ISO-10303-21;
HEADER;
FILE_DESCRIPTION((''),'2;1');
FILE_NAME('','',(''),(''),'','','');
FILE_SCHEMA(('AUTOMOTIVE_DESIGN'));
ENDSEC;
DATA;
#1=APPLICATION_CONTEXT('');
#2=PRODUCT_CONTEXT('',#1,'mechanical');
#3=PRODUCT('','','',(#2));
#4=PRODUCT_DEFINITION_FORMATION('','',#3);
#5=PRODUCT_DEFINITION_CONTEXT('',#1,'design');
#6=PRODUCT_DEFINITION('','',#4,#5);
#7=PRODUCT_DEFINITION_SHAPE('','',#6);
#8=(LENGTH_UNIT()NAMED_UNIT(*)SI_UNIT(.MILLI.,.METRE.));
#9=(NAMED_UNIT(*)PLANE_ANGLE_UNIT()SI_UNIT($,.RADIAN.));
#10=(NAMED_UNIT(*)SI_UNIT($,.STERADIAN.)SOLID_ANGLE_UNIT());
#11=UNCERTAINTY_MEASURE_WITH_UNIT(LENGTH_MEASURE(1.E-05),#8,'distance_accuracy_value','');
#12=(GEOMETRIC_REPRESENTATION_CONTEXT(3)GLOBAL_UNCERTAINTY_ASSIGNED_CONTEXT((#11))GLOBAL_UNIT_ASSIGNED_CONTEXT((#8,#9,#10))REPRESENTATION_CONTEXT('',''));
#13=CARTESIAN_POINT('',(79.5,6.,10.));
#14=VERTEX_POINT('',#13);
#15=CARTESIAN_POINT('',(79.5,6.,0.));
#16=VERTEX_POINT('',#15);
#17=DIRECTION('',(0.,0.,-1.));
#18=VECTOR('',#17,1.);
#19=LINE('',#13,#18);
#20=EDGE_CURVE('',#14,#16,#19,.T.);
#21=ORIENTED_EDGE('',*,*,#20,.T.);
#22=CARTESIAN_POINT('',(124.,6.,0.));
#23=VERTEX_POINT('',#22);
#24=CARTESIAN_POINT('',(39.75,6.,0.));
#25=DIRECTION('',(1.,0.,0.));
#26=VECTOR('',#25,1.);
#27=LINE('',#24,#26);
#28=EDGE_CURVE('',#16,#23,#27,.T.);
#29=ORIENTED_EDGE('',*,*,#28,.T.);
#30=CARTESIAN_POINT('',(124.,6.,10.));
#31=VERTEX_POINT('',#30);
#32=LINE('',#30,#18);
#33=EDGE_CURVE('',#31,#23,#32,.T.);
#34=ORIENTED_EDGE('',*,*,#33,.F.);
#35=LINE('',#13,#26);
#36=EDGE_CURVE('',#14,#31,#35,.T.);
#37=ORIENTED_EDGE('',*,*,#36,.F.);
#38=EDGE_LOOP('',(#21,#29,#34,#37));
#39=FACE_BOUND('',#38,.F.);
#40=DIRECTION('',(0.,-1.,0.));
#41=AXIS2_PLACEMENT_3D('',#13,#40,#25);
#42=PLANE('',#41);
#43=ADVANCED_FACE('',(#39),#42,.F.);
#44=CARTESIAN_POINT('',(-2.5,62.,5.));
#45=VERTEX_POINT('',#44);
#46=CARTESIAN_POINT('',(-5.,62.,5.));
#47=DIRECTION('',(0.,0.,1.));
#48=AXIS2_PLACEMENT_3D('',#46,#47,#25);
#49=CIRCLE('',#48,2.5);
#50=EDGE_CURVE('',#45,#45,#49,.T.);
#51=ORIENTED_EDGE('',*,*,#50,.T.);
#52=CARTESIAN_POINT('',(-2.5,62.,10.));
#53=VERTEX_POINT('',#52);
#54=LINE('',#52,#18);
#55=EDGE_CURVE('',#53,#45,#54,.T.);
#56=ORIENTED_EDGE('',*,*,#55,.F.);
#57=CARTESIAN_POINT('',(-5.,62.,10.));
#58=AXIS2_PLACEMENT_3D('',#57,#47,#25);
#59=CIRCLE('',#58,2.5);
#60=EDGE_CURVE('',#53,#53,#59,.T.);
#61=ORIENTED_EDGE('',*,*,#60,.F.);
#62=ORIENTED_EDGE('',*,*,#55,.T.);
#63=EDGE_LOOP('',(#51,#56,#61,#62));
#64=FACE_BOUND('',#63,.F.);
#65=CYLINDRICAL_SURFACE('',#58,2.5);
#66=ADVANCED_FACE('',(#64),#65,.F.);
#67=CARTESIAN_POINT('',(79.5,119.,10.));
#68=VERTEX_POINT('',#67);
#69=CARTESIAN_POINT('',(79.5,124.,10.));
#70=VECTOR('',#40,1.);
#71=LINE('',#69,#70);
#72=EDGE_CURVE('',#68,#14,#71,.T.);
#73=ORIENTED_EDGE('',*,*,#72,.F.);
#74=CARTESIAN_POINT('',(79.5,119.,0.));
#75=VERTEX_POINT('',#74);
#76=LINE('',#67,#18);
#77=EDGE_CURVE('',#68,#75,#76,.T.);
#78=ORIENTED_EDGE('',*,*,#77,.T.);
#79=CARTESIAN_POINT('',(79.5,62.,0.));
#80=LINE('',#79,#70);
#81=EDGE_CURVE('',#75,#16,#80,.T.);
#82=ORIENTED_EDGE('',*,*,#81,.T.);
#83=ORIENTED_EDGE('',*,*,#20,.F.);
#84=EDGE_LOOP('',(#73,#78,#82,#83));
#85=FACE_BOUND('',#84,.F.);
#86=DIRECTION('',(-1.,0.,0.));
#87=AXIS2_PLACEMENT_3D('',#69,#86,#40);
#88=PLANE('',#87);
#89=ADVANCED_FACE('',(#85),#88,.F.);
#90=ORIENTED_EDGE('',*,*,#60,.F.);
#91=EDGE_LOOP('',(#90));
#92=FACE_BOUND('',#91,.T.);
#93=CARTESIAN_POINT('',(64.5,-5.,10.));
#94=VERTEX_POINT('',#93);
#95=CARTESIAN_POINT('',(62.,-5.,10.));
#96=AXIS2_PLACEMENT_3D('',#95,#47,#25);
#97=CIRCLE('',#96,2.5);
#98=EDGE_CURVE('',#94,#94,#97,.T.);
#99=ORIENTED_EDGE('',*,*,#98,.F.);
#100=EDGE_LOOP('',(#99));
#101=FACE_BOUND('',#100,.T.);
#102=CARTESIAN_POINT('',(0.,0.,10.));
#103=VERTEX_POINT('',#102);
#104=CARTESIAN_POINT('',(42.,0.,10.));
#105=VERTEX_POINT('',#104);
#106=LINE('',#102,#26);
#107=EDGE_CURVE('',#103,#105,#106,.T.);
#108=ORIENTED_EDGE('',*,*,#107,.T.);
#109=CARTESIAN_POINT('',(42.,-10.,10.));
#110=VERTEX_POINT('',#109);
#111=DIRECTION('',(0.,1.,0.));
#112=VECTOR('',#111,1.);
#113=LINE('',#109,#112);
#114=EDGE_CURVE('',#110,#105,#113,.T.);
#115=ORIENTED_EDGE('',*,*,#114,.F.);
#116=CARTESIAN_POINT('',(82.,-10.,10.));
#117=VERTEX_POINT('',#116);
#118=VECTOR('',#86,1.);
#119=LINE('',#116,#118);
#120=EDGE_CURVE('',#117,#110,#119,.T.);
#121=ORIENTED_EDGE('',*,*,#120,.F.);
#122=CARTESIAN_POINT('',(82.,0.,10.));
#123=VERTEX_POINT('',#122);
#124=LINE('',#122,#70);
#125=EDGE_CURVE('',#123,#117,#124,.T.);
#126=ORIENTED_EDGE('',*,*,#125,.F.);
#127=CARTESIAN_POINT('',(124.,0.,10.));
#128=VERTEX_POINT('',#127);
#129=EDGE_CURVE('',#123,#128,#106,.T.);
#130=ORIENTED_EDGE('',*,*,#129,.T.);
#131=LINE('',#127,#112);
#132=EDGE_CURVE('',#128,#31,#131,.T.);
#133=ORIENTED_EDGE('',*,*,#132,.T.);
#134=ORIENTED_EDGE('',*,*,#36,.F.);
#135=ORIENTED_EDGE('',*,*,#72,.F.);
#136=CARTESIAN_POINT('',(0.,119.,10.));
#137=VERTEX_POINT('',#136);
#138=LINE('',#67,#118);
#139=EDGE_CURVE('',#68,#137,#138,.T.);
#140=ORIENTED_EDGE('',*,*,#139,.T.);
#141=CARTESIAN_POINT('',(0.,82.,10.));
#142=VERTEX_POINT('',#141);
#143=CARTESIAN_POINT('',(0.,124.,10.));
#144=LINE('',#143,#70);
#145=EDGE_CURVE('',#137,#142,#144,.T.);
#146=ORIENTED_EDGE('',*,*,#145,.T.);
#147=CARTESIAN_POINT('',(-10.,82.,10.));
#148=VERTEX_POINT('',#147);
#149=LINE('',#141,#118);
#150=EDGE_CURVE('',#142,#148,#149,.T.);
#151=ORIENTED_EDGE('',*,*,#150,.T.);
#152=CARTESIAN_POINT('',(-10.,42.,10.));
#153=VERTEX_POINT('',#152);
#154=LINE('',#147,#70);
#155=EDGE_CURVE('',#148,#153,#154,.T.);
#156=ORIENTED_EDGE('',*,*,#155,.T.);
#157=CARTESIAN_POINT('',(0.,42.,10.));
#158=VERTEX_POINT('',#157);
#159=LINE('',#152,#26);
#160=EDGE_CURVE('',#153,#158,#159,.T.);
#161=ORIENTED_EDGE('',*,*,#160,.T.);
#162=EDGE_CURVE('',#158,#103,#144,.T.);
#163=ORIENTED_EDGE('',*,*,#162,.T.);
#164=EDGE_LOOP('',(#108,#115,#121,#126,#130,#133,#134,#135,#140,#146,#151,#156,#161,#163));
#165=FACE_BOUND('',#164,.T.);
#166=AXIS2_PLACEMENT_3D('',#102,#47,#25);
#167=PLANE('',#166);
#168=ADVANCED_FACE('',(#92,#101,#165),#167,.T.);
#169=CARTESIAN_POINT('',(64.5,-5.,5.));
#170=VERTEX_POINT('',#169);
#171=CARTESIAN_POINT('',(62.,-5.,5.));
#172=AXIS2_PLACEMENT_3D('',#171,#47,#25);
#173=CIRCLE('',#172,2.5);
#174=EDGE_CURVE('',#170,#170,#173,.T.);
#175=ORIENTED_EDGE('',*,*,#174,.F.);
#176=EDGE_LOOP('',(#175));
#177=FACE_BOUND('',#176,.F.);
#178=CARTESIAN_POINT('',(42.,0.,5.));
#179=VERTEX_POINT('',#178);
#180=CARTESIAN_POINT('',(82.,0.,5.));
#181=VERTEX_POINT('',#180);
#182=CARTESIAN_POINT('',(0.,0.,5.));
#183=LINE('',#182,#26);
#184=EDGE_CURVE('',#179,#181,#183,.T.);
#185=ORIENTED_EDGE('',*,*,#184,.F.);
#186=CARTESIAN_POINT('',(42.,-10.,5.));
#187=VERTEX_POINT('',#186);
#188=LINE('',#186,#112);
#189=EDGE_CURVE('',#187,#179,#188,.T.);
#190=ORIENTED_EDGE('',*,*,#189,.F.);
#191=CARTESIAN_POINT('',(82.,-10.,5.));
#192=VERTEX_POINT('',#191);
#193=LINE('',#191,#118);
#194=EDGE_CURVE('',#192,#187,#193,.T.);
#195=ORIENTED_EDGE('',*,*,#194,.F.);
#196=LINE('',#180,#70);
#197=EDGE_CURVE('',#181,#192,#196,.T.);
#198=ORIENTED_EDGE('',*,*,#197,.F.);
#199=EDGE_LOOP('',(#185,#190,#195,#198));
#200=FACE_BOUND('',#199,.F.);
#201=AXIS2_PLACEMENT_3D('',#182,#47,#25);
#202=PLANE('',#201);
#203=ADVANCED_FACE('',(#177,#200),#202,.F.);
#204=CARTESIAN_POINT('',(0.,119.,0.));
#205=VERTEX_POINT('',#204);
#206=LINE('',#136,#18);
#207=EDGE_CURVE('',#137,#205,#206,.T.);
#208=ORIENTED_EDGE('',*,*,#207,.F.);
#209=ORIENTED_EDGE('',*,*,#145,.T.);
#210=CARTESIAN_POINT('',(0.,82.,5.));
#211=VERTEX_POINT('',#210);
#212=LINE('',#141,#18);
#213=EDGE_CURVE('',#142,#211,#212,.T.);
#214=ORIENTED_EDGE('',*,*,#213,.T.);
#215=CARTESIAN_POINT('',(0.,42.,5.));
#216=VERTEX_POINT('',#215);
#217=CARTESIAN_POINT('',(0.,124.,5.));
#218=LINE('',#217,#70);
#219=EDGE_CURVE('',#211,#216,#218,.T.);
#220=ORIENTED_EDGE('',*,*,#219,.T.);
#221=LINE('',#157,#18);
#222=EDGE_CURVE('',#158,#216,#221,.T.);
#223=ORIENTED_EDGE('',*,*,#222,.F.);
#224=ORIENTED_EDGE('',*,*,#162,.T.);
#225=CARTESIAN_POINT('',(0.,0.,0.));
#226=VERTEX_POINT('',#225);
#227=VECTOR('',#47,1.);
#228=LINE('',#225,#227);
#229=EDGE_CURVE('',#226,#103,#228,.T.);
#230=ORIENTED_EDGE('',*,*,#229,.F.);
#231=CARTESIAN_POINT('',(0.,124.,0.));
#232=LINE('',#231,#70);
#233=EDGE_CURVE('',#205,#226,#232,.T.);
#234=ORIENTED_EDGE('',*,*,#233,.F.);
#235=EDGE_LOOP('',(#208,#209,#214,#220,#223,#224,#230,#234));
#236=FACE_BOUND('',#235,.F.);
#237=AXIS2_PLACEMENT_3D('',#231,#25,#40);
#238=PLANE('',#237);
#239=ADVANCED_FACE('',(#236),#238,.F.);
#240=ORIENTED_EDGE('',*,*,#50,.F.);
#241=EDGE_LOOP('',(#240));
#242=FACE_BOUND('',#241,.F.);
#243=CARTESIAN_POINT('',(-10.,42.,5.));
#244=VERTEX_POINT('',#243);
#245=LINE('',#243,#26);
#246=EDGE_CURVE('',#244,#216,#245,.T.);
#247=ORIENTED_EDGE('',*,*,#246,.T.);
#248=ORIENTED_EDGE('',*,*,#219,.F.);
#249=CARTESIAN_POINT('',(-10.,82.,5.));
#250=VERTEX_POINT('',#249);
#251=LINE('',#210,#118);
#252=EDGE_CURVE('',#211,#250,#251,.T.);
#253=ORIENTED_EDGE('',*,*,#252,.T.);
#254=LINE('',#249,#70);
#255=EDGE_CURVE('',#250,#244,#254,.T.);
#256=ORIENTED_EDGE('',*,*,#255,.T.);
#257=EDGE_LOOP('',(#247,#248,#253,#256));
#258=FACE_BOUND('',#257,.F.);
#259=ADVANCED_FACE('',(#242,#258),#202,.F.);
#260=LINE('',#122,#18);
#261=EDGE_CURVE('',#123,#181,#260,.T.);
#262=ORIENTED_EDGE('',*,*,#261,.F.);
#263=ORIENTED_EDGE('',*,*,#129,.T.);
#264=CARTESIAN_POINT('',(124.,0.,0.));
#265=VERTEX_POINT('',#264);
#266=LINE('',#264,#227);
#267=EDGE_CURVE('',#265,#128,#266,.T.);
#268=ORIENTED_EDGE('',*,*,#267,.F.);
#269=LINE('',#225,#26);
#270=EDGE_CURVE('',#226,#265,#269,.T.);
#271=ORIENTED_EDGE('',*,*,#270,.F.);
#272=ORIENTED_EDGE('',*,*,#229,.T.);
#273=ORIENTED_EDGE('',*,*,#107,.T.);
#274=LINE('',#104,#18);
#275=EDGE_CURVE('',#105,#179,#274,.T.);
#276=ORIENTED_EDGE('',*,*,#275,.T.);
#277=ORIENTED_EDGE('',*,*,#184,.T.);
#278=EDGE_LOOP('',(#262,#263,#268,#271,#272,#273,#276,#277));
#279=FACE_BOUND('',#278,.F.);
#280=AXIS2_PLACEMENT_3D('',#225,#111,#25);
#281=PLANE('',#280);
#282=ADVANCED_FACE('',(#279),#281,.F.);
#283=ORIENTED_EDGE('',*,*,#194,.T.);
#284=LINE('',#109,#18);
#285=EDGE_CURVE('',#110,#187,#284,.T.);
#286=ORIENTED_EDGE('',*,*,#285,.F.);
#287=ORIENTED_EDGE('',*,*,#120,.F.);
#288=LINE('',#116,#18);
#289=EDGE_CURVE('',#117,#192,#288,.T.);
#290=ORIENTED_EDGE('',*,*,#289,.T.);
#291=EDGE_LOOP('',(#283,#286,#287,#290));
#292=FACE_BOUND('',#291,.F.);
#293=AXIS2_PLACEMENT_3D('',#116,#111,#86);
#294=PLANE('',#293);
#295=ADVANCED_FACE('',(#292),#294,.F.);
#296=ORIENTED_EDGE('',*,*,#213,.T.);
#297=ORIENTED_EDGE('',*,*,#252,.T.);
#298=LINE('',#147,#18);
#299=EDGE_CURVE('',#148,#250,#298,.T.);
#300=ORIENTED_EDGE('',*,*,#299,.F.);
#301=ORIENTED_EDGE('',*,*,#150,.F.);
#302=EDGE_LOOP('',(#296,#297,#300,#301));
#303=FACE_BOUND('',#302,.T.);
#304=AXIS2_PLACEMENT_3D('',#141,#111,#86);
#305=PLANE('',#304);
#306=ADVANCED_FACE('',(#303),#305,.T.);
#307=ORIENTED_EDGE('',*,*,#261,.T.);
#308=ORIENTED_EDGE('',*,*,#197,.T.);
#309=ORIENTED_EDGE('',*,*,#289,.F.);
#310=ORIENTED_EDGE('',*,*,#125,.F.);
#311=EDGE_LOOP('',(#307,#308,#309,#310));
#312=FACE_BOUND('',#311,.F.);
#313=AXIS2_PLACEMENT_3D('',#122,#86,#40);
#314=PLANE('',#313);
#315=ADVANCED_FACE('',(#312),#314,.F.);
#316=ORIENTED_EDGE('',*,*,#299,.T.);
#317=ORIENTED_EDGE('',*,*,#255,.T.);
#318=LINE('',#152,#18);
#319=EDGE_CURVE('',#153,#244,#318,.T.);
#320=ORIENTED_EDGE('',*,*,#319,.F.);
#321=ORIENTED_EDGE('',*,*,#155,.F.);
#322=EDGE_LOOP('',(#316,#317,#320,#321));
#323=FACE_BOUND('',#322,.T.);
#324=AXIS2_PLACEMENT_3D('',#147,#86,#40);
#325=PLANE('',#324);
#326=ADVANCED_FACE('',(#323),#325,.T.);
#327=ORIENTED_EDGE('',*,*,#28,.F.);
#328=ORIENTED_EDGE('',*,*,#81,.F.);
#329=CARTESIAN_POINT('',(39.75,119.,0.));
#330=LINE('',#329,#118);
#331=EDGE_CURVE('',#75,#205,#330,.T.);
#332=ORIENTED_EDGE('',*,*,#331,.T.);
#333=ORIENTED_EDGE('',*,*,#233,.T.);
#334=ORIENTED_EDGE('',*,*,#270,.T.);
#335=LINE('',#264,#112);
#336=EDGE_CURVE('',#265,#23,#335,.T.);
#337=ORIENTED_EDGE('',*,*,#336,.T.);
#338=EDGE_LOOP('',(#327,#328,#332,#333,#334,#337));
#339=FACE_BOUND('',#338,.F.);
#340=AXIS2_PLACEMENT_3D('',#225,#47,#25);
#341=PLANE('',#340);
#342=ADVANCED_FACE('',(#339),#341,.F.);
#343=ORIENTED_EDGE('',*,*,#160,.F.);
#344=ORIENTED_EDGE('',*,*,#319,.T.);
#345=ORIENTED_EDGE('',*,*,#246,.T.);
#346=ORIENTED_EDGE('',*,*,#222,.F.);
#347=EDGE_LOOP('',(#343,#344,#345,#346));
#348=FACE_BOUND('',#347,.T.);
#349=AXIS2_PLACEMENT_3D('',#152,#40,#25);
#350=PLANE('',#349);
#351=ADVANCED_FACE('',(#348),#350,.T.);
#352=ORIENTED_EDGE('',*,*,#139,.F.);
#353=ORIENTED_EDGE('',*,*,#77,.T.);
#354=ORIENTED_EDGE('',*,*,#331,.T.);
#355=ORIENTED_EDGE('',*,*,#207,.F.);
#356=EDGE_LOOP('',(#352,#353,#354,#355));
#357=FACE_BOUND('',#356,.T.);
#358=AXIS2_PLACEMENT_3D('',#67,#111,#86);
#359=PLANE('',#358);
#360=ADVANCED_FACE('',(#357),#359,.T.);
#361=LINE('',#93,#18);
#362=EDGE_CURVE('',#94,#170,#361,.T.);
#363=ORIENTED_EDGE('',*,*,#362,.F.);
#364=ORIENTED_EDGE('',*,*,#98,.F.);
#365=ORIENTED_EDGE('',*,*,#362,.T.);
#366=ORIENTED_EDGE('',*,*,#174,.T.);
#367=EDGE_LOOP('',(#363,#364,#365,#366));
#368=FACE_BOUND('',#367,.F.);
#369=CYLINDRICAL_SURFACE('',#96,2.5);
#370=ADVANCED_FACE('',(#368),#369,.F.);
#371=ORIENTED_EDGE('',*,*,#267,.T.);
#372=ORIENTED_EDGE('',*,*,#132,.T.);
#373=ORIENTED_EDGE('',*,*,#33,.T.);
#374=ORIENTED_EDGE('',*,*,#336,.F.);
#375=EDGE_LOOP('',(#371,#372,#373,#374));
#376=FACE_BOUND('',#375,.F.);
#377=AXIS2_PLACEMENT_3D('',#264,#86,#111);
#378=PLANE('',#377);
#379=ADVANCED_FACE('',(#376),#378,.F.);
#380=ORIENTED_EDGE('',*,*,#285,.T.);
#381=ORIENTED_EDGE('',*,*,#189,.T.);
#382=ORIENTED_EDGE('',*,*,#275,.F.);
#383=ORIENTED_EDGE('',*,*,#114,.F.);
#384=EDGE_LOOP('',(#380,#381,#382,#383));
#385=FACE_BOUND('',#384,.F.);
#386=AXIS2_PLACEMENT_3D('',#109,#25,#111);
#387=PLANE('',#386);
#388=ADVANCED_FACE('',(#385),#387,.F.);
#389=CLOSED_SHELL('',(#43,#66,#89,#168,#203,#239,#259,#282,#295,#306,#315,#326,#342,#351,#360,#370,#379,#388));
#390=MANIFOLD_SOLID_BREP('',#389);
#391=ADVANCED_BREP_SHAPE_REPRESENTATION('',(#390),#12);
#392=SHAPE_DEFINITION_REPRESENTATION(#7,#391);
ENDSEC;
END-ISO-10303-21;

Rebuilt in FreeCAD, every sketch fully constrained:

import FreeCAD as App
import Part
import Sketcher
from FreeCAD import Vector

doc = App.newDocument("Part")
body = doc.addObject("PartDesign::Body", "Body")

# Sketch on XY plane
sketch1 = body.newObject("Sketcher::SketchObject", "Sketch")
sketch1.AttachmentSupport = (doc.getObject("XY_Plane"), [""])
sketch1.MapMode = "FlatFace"
sketch1.addGeometry([
    Part.LineSegment(Vector(0, 124, 0), Vector(0, 0, 0)),
    Part.LineSegment(Vector(0, 0, 0), Vector(124, 0, 0)),
    Part.LineSegment(Vector(124, 0, 0), Vector(124, 124, 0)),
    Part.LineSegment(Vector(124, 124, 0), Vector(0, 124, 0)),
], False)
sketch1.addConstraint([
    Sketcher.Constraint("Coincident", 0, 2, 1, 1),
    Sketcher.Constraint("Coincident", 1, 2, 2, 1),
    Sketcher.Constraint("Coincident", 2, 2, 3, 1),
    Sketcher.Constraint("Coincident", 3, 2, 0, 1),
    Sketcher.Constraint("Vertical", 0),
    Sketcher.Constraint("Horizontal", 1),
    Sketcher.Constraint("Vertical", 2),
    Sketcher.Constraint("Horizontal", 3),
    Sketcher.Constraint("Coincident", 0, 2, -1, 1),
    Sketcher.Constraint("Equal", 3, 0),
    Sketcher.Constraint("DistanceX", 1, 1, 1, 2, 124.0),
])
pad1 = body.newObject("PartDesign::Pad", "Pad")
pad1.Profile = sketch1
pad1.Length = 10

# Sketch on XY plane
sketch2 = body.newObject("Sketcher::SketchObject", "Sketch001")
sketch2.AttachmentSupport = (doc.getObject("XY_Plane"), [""])
sketch2.MapMode = "FlatFace"
sketch2.AttachmentOffset = App.Placement(Vector(0, 0, 10), App.Rotation())
sketch2.addGeometry([
    Part.LineSegment(Vector(80, 6, 0), Vector(124, 6, 0)),
    Part.LineSegment(Vector(124, 6, 0), Vector(124, 124, 0)),
    Part.LineSegment(Vector(124, 124, 0), Vector(80, 124, 0)),
    Part.LineSegment(Vector(80, 124, 0), Vector(80, 6, 0)),
], False)
sketch2.addConstraint([
    Sketcher.Constraint("Coincident", 0, 2, 1, 1),
    Sketcher.Constraint("Coincident", 1, 2, 2, 1),
    Sketcher.Constraint("Coincident", 2, 2, 3, 1),
    Sketcher.Constraint("Coincident", 3, 2, 0, 1),
    Sketcher.Constraint("Horizontal", 0),
    Sketcher.Constraint("Vertical", 1),
    Sketcher.Constraint("Horizontal", 2),
    Sketcher.Constraint("Vertical", 3),
    Sketcher.Constraint("DistanceY", 1, 1, 1, 2, 118.0),
    Sketcher.Constraint("DistanceX", 0, 1, 0, 2, 44.5),
    Sketcher.Constraint("DistanceX", -1, 1, 0, 2, 124.0),
    Sketcher.Constraint("DistanceY", -1, 1, 0, 2, 6.0),
])
pocket1 = body.newObject("PartDesign::Pocket", "Pocket")
pocket1.Profile = sketch2
pocket1.Type = "ThroughAll"

# Sketch on XY plane
sketch3 = body.newObject("Sketcher::SketchObject", "Sketch002")
sketch3.AttachmentSupport = (doc.getObject("XY_Plane"), [""])
sketch3.MapMode = "FlatFace"
sketch3.AttachmentOffset = App.Placement(Vector(0, 0, 10), App.Rotation())
sketch3.addGeometry([
    Part.LineSegment(Vector(82, 0, 0), Vector(42, 0, 0)),  # 0
    Part.LineSegment(Vector(42, 0, 0), Vector(42, -10, 0)),  # 1
    Part.LineSegment(Vector(42, -10, 0), Vector(82, -10, 0)),  # 2
    Part.LineSegment(Vector(82, -10, 0), Vector(82, 0, 0)),  # 3
    Part.Circle(Vector(62, -5, 0), Vector(0, 0, 1), 2.5),  # 4
    Part.LineSegment(Vector(0, 42, 0), Vector(0, 82, 0)),  # 5
    Part.LineSegment(Vector(0, 82, 0), Vector(-10, 82, 0)),  # 6
    Part.LineSegment(Vector(-10, 82, 0), Vector(-10, 42, 0)),  # 7
    Part.LineSegment(Vector(-10, 42, 0), Vector(0, 42, 0)),  # 8
    Part.Circle(Vector(-5, 62, 0), Vector(0, 0, 1), 2.5),  # 9
], False)
sketch3.addConstraint([
    Sketcher.Constraint("Coincident", 0, 2, 1, 1),
    Sketcher.Constraint("Coincident", 1, 2, 2, 1),
    Sketcher.Constraint("Coincident", 2, 2, 3, 1),
    Sketcher.Constraint("Coincident", 3, 2, 0, 1),
    Sketcher.Constraint("Coincident", 5, 2, 6, 1),
    Sketcher.Constraint("Coincident", 6, 2, 7, 1),
    Sketcher.Constraint("Coincident", 7, 2, 8, 1),
    Sketcher.Constraint("Coincident", 8, 2, 5, 1),
    Sketcher.Constraint("Horizontal", 0),
    Sketcher.Constraint("Vertical", 1),
    Sketcher.Constraint("Horizontal", 2),
    Sketcher.Constraint("Vertical", 3),
    Sketcher.Constraint("Vertical", 5),
    Sketcher.Constraint("Horizontal", 6),
    Sketcher.Constraint("Vertical", 7),
    Sketcher.Constraint("Horizontal", 8),
    Sketcher.Constraint("Equal", 4, 9),
    Sketcher.Constraint("PointOnObject", 0, 2, -1),
    Sketcher.Constraint("PointOnObject", 5, 2, -2),
    Sketcher.Constraint("Equal", 8, 1),
    Sketcher.Constraint("Equal", 2, 5),
    Sketcher.Constraint("Diameter", 4, 5.0),
    Sketcher.Constraint("DistanceX", 0, 2, 0, 1, 40.0),
    Sketcher.Constraint("DistanceX", 6, 2, 6, 1, 10.0),
    Sketcher.Constraint("DistanceY", 4, 3, -1, 1, 5.0),
    Sketcher.Constraint("DistanceX", 9, 3, -1, 1, 5.0),
    Sketcher.Constraint("DistanceX", -1, 1, 4, 3, 62.0),
    Sketcher.Constraint("DistanceY", -1, 1, 9, 3, 62.0),
    Sketcher.Constraint("DistanceX", -1, 1, 0, 2, 42.0),
    Sketcher.Constraint("DistanceY", -1, 1, 5, 2, 82.0),
])
pad2 = body.newObject("PartDesign::Pad", "Pad001")
pad2.Profile = sketch3
pad2.Length = 5
pad2.Reversed = True

# Sketch on XY plane
sketch4 = body.newObject("Sketcher::SketchObject", "Sketch003")
sketch4.AttachmentSupport = (doc.getObject("XY_Plane"), [""])
sketch4.MapMode = "FlatFace"
sketch4.AttachmentOffset = App.Placement(Vector(0, 0, 10), App.Rotation())
sketch4.addGeometry([
    Part.LineSegment(Vector(80, 124, 0), Vector(0, 124, 0)),
    Part.LineSegment(Vector(0, 124, 0), Vector(0, 119, 0)),
    Part.LineSegment(Vector(0, 119, 0), Vector(80, 119, 0)),
    Part.LineSegment(Vector(80, 119, 0), Vector(80, 124, 0)),
], False)
sketch4.addConstraint([
    Sketcher.Constraint("Coincident", 0, 2, 1, 1),
    Sketcher.Constraint("Coincident", 1, 2, 2, 1),
    Sketcher.Constraint("Coincident", 2, 2, 3, 1),
    Sketcher.Constraint("Coincident", 3, 2, 0, 1),
    Sketcher.Constraint("Horizontal", 0),
    Sketcher.Constraint("Vertical", 1),
    Sketcher.Constraint("Horizontal", 2),
    Sketcher.Constraint("Vertical", 3),
    Sketcher.Constraint("PointOnObject", 0, 2, -2),
    Sketcher.Constraint("DistanceY", 1, 2, 1, 1, 5.0),
    Sketcher.Constraint("DistanceX", 0, 2, 0, 1, 79.5),
    Sketcher.Constraint("DistanceY", -1, 1, 0, 2, 124.0),
])
pocket2 = body.newObject("PartDesign::Pocket", "Pocket001")
pocket2.Profile = sketch4
pocket2.Type = "ThroughAll"

doc.recompute()
